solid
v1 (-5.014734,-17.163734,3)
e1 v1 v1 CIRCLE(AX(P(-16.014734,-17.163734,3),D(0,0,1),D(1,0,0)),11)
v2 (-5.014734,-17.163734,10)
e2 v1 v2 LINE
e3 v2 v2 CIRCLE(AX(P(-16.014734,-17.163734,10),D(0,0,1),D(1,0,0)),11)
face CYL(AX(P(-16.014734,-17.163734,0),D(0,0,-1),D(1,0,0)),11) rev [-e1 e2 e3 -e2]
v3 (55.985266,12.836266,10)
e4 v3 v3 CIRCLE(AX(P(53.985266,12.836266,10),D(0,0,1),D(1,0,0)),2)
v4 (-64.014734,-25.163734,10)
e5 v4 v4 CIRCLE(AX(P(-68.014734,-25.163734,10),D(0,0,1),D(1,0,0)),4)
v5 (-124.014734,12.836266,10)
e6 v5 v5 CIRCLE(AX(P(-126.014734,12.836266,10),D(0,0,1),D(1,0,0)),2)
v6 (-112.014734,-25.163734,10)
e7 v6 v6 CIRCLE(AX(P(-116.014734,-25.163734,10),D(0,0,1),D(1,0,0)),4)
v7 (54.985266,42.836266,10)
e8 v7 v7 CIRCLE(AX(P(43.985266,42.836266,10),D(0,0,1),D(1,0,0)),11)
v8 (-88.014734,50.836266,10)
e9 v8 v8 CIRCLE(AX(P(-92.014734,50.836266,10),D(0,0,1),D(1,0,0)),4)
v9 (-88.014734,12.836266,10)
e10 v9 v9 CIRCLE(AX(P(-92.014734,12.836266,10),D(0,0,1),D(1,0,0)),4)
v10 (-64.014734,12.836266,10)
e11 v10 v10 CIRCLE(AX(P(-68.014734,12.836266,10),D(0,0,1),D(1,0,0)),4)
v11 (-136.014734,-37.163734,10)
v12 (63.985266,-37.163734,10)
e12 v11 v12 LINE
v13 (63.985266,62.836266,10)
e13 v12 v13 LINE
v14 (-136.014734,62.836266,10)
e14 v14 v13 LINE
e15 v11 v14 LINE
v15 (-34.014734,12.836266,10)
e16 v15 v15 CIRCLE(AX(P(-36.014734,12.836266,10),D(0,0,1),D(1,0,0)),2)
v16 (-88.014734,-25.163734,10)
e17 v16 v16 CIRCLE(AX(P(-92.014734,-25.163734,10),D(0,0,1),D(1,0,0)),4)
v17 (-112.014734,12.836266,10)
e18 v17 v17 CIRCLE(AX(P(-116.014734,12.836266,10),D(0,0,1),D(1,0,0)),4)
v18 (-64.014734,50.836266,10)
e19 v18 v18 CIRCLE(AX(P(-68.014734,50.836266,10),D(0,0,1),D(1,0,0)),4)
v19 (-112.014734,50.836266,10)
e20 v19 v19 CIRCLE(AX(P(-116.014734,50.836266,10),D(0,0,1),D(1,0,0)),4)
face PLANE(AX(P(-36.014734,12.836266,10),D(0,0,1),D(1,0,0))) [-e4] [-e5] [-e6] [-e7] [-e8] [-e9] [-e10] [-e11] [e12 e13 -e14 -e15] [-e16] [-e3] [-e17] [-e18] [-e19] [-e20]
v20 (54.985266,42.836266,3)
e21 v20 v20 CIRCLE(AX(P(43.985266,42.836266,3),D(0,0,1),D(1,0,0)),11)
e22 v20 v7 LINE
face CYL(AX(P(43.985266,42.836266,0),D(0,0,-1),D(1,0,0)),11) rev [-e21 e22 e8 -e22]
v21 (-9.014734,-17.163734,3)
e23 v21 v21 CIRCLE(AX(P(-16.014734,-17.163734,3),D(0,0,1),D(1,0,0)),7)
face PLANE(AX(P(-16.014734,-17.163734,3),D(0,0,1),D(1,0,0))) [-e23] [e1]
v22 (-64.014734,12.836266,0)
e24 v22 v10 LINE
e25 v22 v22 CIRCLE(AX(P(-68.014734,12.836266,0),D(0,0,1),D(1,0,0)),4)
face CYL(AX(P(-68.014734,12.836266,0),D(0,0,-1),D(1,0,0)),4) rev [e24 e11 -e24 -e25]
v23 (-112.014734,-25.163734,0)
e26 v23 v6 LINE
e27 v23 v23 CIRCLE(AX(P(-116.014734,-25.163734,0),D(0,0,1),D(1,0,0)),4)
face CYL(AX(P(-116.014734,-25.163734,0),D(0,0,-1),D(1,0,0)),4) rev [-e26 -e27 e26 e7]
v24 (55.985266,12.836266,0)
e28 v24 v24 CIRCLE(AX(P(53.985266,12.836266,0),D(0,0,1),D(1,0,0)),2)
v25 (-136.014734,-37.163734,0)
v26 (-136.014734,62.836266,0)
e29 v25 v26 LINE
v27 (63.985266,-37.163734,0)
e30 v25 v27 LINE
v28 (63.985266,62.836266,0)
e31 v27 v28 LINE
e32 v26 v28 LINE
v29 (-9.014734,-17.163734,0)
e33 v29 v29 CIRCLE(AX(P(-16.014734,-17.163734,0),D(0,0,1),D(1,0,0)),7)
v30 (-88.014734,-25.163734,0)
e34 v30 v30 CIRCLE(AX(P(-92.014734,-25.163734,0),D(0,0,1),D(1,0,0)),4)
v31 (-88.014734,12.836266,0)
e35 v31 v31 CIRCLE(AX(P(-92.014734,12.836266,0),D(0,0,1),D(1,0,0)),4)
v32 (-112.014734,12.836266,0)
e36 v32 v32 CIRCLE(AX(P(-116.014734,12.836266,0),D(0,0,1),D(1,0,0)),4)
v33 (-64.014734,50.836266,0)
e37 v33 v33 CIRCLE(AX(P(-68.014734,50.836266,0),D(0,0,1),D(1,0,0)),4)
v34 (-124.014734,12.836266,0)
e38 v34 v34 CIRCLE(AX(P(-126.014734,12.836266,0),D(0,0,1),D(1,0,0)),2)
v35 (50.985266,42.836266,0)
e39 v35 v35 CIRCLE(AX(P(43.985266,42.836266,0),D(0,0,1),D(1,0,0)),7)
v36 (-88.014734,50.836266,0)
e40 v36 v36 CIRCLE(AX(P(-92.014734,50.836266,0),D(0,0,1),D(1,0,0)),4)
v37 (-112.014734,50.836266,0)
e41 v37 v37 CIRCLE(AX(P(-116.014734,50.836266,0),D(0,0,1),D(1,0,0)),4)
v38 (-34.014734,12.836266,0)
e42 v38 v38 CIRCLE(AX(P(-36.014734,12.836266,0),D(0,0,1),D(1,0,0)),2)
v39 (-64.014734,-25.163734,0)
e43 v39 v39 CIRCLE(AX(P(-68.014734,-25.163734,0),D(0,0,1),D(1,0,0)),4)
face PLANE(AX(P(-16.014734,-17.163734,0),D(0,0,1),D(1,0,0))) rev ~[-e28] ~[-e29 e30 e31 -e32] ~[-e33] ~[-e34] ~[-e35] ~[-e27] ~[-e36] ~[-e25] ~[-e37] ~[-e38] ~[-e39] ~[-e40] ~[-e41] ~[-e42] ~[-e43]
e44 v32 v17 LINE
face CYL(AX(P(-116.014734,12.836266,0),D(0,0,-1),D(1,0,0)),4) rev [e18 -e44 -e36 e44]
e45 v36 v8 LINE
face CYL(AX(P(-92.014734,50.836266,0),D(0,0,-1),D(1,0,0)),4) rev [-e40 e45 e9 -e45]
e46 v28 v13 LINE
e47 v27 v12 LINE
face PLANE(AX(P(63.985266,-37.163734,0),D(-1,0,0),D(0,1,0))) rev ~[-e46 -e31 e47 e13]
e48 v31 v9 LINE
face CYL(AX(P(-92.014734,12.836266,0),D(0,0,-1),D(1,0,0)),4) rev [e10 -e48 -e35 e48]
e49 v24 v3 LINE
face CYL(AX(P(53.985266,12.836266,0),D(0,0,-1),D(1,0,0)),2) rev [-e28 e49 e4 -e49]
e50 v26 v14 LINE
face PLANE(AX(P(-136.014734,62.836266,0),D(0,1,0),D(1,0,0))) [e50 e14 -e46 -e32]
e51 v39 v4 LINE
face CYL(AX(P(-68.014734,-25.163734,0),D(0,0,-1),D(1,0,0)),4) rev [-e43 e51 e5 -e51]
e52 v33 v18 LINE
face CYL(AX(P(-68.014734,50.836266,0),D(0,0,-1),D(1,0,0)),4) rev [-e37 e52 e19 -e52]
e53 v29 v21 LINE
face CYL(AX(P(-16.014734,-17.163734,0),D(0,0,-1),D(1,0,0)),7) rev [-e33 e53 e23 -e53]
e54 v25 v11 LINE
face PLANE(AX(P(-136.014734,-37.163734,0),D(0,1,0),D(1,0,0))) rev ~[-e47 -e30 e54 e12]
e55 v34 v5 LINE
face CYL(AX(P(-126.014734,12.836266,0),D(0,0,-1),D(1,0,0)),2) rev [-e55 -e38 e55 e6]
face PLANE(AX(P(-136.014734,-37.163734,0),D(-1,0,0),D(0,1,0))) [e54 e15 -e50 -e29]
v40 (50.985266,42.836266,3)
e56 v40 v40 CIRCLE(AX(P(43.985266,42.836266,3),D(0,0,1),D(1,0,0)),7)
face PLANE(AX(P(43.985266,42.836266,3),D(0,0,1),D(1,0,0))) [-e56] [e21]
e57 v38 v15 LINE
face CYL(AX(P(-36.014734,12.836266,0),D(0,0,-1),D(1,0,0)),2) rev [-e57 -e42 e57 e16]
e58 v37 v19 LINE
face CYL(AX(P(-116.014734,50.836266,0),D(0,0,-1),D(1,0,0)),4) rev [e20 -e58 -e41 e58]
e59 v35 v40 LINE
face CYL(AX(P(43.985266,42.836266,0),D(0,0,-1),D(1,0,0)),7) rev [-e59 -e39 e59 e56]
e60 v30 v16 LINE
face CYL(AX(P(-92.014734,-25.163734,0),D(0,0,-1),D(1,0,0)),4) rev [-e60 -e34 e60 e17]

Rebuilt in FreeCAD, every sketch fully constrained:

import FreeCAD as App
import Part
import Sketcher
Q = App.Units.Quantity

doc = App.newDocument("Part")
body = doc.addObject("PartDesign::Body", "Body")

sketch1 = body.newObject("Sketcher::SketchObject", "Sketch")
sketch1.AttachmentSupport = (doc.getObject("XY_Plane"), [""])
sketch1.MapMode = "FlatFace"
sketch1.addGeometry([
    Part.LineSegment(App.Vector(-136, 62.8, 0), App.Vector(-136, -37.2, 0)),
    Part.LineSegment(App.Vector(-136, -37.2, 0), App.Vector(64, -37.2, 0)),
    Part.LineSegment(App.Vector(64, -37.2, 0), App.Vector(64, 62.8, 0)),
    Part.LineSegment(App.Vector(64, 62.8, 0), App.Vector(-136, 62.8, 0)),
    Part.Circle(App.Vector(-116, -25.2, 0), App.Vector(0, 0, 1), 4),
    Part.Circle(App.Vector(-92, -25.2, 0), App.Vector(0, 0, 1), 4),
    Part.Circle(App.Vector(-68, -25.2, 0), App.Vector(0, 0, 1), 4),
    Part.Circle(App.Vector(-16, -17.2, 0), App.Vector(0, 0, 1), 11),
    Part.Circle(App.Vector(-126, 12.8, 0), App.Vector(0, 0, 1), 2),
    Part.Circle(App.Vector(-116, 12.8, 0), App.Vector(0, 0, 1), 4),
    Part.Circle(App.Vector(-92, 12.8, 0), App.Vector(0, 0, 1), 4),
    Part.Circle(App.Vector(-68, 12.8, 0), App.Vector(0, 0, 1), 4),
    Part.Circle(App.Vector(-116, 50.8, 0), App.Vector(0, 0, 1), 4),
    Part.Circle(App.Vector(-92, 50.8, 0), App.Vector(0, 0, 1), 4),
    Part.Circle(App.Vector(-68, 50.8, 0), App.Vector(0, 0, 1), 4),
    Part.Circle(App.Vector(-36, 12.8, 0), App.Vector(0, 0, 1), 2),
    Part.Circle(App.Vector(54, 12.8, 0), App.Vector(0, 0, 1), 2),
    Part.Circle(App.Vector(44, 42.8, 0), App.Vector(0, 0, 1), 11),
], False)
sketch1.addConstraint([
    Sketcher.Constraint("Coincident", 0, 2, 1, 1),
    Sketcher.Constraint("Coincident", 1, 2, 2, 1),
    Sketcher.Constraint("Coincident", 2, 2, 3, 1),
    Sketcher.Constraint("Coincident", 3, 2, 0, 1),
    Sketcher.Constraint("Vertical", 0),
    Sketcher.Constraint("Horizontal", 1),
    Sketcher.Constraint("Vertical", 2),
    Sketcher.Constraint("Horizontal", 3),
    Sketcher.Constraint("Equal", 4, 5),
    Sketcher.Constraint("Equal", 5, 6),
    Sketcher.Constraint("Equal", 6, 9),
    Sketcher.Constraint("Equal", 9, 10),
    Sketcher.Constraint("Equal", 10, 11),
    Sketcher.Constraint("Equal", 11, 12),
    Sketcher.Constraint("Equal", 12, 13),
    Sketcher.Constraint("Equal", 13, 14),
    Sketcher.Constraint("Equal", 8, 15),
    Sketcher.Constraint("Equal", 15, 16),
    Sketcher.Constraint("Equal", 7, 17),
    Sketcher.Constraint("Horizontal", 4, 3, 5, 3),
    Sketcher.Constraint("Horizontal", 5, 3, 6, 3),
    Sketcher.Constraint("Horizontal", 8, 3, 9, 3),
    Sketcher.Constraint("Horizontal", 9, 3, 10, 3),
    Sketcher.Constraint("Horizontal", 10, 3, 11, 3),
    Sketcher.Constraint("Horizontal", 12, 3, 13, 3),
    Sketcher.Constraint("Horizontal", 13, 3, 14, 3),
    Sketcher.Constraint("Horizontal", 11, 3, 15, 3),
    Sketcher.Constraint("Horizontal", 15, 3, 16, 3),
    Sketcher.Constraint("Vertical", 4, 3, 9, 3),
    Sketcher.Constraint("Vertical", 5, 3, 10, 3),
    Sketcher.Constraint("Vertical", 6, 3, 11, 3),
    Sketcher.Constraint("Vertical", 9, 3, 12, 3),
    Sketcher.Constraint("Vertical", 10, 3, 13, 3),
    Sketcher.Constraint("Vertical", 11, 3, 14, 3),
    Sketcher.Constraint("Diameter", 4, Q("8 mm")),
    Sketcher.Constraint("Diameter", 7, Q("22 mm")),
    Sketcher.Constraint("Diameter", 8, Q("4 mm")),
    Sketcher.Constraint("DistanceX", 1, 1, 1, 2, Q("200 mm")),
    Sketcher.Constraint("DistanceY", 0, 2, 0, 1, Q("100 mm")),
    Sketcher.Constraint("DistanceX", 4, 3, 5, 3, Q("24 mm")),
    Sketcher.Constraint("DistanceX", 5, 3, 6, 3, Q("24 mm")),
    Sketcher.Constraint("DistanceX", 6, 3, 7, 3, Q("52 mm")),
    Sketcher.Constraint("DistanceY", 6, 3, 7, 3, Q("8 mm")),
    Sketcher.Constraint("DistanceX", 8, 3, 4, 3, Q("10 mm")),
    Sketcher.Constraint("DistanceY", 4, 3, 8, 3, Q("38 mm")),
    Sketcher.Constraint("DistanceY", 9, 3, 12, 3, Q("38 mm")),
    Sketcher.Constraint("DistanceX", 11, 3, 15, 3, Q("32 mm")),
    Sketcher.Constraint("DistanceX", 7, 3, 16, 3, Q("70 mm")),
    Sketcher.Constraint("DistanceX", 17, 3, 16, 3, Q("10 mm")),
    Sketcher.Constraint("DistanceY", 16, 3, 17, 3, Q("30 mm")),
    Sketcher.Constraint("DistanceX", 0, 2, 4, 3, Q("20 mm")),
    Sketcher.Constraint("DistanceY", 0, 2, 4, 3, Q("12 mm")),
    Sketcher.Constraint("DistanceX", 4, 3, -1, 1, Q("116.014734 mm")),
    Sketcher.Constraint("DistanceY", 4, 3, -1, 1, Q("25.163734 mm")),
])
pad1 = body.newObject("PartDesign::Pad", "Pad")
pad1.Profile = sketch1
pad1.Length = 10

sketch2 = body.newObject("Sketcher::SketchObject", "Sketch001")
sketch2.AttachmentSupport = (doc.getObject("XY_Plane"), [""])
sketch2.MapMode = "FlatFace"
sketch2.addGeometry([
    Part.Circle(App.Vector(-16, -17, 0), App.Vector(0, 0, 1), 11),
    Part.Circle(App.Vector(-16, -17, 0), App.Vector(0, 0, 1), 7),
    Part.Circle(App.Vector(44, 43, 0), App.Vector(0, 0, 1), 11),
    Part.Circle(App.Vector(44, 43, 0), App.Vector(0, 0, 1), 7),
], False)
sketch2.addConstraint([
    Sketcher.Constraint("Coincident", 1, 3, 0, 3),
    Sketcher.Constraint("Coincident", 3, 3, 2, 3),
    Sketcher.Constraint("Equal", 0, 2),
    Sketcher.Constraint("Equal", 1, 3),
    Sketcher.Constraint("Diameter", 0, Q("22 mm")),
    Sketcher.Constraint("Diameter", 1, Q("14 mm")),
    Sketcher.Constraint("DistanceX", 0, 3, 2, 3, Q("60 mm")),
    Sketcher.Constraint("DistanceY", 0, 3, 2, 3, Q("60 mm")),
    Sketcher.Constraint("DistanceX", 0, 3, -1, 1, Q("16.014734 mm")),
    Sketcher.Constraint("DistanceY", 0, 3, -1, 1, Q("17.163734 mm")),
])
pad2 = body.newObject("PartDesign::Pad", "Pad001")
pad2.Profile = sketch2
pad2.Length = 3

doc.recompute()
